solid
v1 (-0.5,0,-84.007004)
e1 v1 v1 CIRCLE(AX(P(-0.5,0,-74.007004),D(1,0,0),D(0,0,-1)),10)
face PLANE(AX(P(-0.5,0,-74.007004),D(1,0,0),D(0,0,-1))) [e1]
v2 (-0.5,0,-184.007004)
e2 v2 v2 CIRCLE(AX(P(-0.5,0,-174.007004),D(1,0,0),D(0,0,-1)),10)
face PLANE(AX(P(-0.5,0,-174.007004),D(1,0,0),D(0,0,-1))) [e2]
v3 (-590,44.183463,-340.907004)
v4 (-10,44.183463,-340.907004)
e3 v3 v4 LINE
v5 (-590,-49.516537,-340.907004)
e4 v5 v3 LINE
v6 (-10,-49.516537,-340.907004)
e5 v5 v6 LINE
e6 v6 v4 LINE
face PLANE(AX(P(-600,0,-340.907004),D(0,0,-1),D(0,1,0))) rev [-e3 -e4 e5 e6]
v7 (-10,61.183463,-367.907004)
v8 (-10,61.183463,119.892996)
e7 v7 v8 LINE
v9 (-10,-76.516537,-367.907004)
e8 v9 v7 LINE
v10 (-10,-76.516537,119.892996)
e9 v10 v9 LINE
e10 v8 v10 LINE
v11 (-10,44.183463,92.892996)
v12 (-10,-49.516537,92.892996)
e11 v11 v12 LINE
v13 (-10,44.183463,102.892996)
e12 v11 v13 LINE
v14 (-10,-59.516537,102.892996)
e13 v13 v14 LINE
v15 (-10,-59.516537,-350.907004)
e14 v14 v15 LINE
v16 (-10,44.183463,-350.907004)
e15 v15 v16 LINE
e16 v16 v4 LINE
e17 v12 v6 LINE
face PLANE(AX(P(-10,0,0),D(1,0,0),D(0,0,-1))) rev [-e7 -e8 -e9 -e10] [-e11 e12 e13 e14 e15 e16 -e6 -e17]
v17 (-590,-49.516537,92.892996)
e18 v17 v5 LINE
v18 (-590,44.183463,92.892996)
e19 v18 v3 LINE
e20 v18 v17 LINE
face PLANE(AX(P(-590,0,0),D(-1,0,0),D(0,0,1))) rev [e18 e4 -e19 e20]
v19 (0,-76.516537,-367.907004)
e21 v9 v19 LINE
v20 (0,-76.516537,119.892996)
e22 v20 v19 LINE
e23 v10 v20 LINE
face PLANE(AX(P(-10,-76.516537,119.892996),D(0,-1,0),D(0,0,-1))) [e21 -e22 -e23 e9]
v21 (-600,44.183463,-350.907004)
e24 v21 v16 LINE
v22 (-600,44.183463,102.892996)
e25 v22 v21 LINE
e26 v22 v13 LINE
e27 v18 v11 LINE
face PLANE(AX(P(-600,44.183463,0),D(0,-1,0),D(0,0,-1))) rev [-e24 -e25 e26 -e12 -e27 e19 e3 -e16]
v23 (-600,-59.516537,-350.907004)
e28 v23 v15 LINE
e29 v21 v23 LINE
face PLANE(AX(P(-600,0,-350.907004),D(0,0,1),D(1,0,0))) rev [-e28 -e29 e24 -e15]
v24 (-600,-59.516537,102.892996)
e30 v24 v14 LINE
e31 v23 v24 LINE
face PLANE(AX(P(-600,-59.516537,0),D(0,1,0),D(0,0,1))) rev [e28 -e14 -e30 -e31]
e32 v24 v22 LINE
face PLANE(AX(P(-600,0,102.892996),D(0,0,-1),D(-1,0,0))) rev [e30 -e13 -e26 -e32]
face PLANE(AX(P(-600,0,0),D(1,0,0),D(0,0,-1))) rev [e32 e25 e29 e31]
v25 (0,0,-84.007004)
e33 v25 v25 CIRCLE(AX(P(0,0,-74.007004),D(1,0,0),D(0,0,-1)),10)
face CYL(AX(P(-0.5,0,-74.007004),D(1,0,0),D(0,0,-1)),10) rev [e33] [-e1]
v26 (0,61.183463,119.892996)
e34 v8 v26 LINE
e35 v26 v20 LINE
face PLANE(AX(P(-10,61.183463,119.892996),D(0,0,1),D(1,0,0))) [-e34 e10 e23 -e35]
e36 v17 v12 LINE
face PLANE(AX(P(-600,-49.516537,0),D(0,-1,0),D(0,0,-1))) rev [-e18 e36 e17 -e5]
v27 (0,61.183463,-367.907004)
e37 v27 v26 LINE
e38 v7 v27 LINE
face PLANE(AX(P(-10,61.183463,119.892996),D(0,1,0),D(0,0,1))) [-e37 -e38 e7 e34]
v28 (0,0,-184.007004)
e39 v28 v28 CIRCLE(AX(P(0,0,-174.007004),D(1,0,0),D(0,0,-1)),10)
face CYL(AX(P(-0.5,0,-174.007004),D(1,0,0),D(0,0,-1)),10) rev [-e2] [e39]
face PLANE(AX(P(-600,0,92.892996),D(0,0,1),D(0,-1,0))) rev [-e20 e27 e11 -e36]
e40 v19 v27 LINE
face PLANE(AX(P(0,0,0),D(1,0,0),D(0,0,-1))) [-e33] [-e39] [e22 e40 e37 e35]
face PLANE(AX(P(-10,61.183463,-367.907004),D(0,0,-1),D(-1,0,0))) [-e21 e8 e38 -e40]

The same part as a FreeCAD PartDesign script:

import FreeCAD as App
import Part
import Sketcher
from FreeCAD import Vector
Q = App.Units.Quantity

doc = App.newDocument("Part")
body = doc.addObject("PartDesign::Body", "Body")

# Sketch on YZ plane
sketch1 = body.newObject("Sketcher::SketchObject", "Sketch")
sketch1.AttachmentSupport = (doc.getObject("YZ_Plane"), [""])
sketch1.MapMode = "FlatFace"
sketch1.addGeometry([
    Part.LineSegment(Vector(61.183463, 119.892996, 0), Vector(-76.516537, 119.892996, 0)),  # 0
    Part.LineSegment(Vector(-76.516537, 119.892996, 0), Vector(-76.516537, -367.907004, 0)),  # 1
    Part.LineSegment(Vector(-76.516537, -367.907004, 0), Vector(61.183463, -367.907004, 0)),  # 2
    Part.LineSegment(Vector(61.183463, -367.907004, 0), Vector(61.183463, 119.892996, 0)),  # 3
    Part.LineSegment(Vector(-59.516537, -350.907004, 0), Vector(-59.516537, 102.892996, 0)),  # 4
    Part.LineSegment(Vector(-59.516537, 102.892996, 0), Vector(44.183463, 102.892996, 0)),  # 5
    Part.LineSegment(Vector(44.183463, 102.892996, 0), Vector(44.183463, -350.907004, 0)),  # 6
    Part.LineSegment(Vector(44.183463, -350.907004, 0), Vector(-59.516537, -350.907004, 0)),  # 7
], False)
sketch1.addConstraint([
    Sketcher.Constraint("Coincident", 0, 2, 1, 1),
    Sketcher.Constraint("Coincident", 1, 2, 2, 1),
    Sketcher.Constraint("Coincident", 2, 2, 3, 1),
    Sketcher.Constraint("Coincident", 3, 2, 0, 1),
    Sketcher.Constraint("Coincident", 4, 2, 5, 1),
    Sketcher.Constraint("Coincident", 5, 2, 6, 1),
    Sketcher.Constraint("Coincident", 6, 2, 7, 1),
    Sketcher.Constraint("Coincident", 7, 2, 4, 1),
    Sketcher.Constraint("Horizontal", 0),
    Sketcher.Constraint("Vertical", 1),
    Sketcher.Constraint("Horizontal", 2),
    Sketcher.Constraint("Vertical", 3),
    Sketcher.Constraint("Vertical", 4),
    Sketcher.Constraint("Horizontal", 5),
    Sketcher.Constraint("Vertical", 6),
    Sketcher.Constraint("Horizontal", 7),
    Sketcher.Constraint("DistanceX", 0, 2, 0, 1, Q("137.7 mm")),
    Sketcher.Constraint("DistanceX", 5, 1, 5, 2, Q("103.7 mm")),
    Sketcher.Constraint("DistanceY", 1, 2, 1, 1, Q("487.8 mm")),
    Sketcher.Constraint("DistanceY", 4, 1, 4, 2, Q("453.8 mm")),
    Sketcher.Constraint("DistanceX", 0, 2, 4, 2, Q("17 mm")),
    Sketcher.Constraint("DistanceY", 4, 2, 0, 2, Q("17 mm")),
    Sketcher.Constraint("DistanceX", 0, 2, -1, 1, Q("76.516537 mm")),
    Sketcher.Constraint("DistanceY", -1, 1, 0, 2, Q("119.892996 mm")),
])
pad1 = body.newObject("PartDesign::Pad", "Pad")
pad1.Profile = sketch1
pad1.Length = 10
pad1.Reversed = True

# Sketch on YZ plane
sketch2 = body.newObject("Sketcher::SketchObject", "Sketch001")
sketch2.AttachmentSupport = (doc.getObject("YZ_Plane"), [""])
sketch2.MapMode = "FlatFace"
sketch2.addGeometry([
    Part.LineSegment(Vector(-49.516537, 92.892996, 0), Vector(44.183463, 92.892996, 0)),  # 0
    Part.LineSegment(Vector(44.183463, 92.892996, 0), Vector(44.183463, 102.892996, 0)),  # 1
    Part.LineSegment(Vector(44.183463, 102.892996, 0), Vector(-59.516537, 102.892996, 0)),  # 2
    Part.LineSegment(Vector(-59.516537, 102.892996, 0), Vector(-59.516537, -350.907004, 0)),  # 3
    Part.LineSegment(Vector(-59.516537, -350.907004, 0), Vector(44.183463, -350.907004, 0)),  # 4
    Part.LineSegment(Vector(44.183463, -350.907004, 0), Vector(44.183463, -340.907004, 0)),  # 5
    Part.LineSegment(Vector(44.183463, -340.907004, 0), Vector(-49.516537, -340.907004, 0)),  # 6
    Part.LineSegment(Vector(-49.516537, -340.907004, 0), Vector(-49.516537, 92.892996, 0)),  # 7
], False)
sketch2.addConstraint([
    Sketcher.Constraint("Coincident", 0, 2, 1, 1),
    Sketcher.Constraint("Coincident", 1, 2, 2, 1),
    Sketcher.Constraint("Coincident", 2, 2, 3, 1),
    Sketcher.Constraint("Coincident", 3, 2, 4, 1),
    Sketcher.Constraint("Coincident", 4, 2, 5, 1),
    Sketcher.Constraint("Coincident", 5, 2, 6, 1),
    Sketcher.Constraint("Coincident", 6, 2, 7, 1),
    Sketcher.Constraint("Coincident", 7, 2, 0, 1),
    Sketcher.Constraint("Horizontal", 0),
    Sketcher.Constraint("Vertical", 1),
    Sketcher.Constraint("Horizontal", 2),
    Sketcher.Constraint("Vertical", 3),
    Sketcher.Constraint("Horizontal", 4),
    Sketcher.Constraint("Vertical", 5),
    Sketcher.Constraint("Horizontal", 6),
    Sketcher.Constraint("Vertical", 7),
    Sketcher.Constraint("Vertical", 1, 2, 4, 2),
    Sketcher.Constraint("Equal", 1, 5),
    Sketcher.Constraint("DistanceY", 1, 1, 1, 2, Q("10 mm")),
    Sketcher.Constraint("DistanceX", 0, 1, 0, 2, Q("93.7 mm")),
    Sketcher.Constraint("DistanceX", 2, 2, 2, 1, Q("103.7 mm")),
    Sketcher.Constraint("DistanceY", 3, 2, 3, 1, Q("453.8 mm")),
    Sketcher.Constraint("DistanceX", -1, 1, 0, 2, Q("44.183463 mm")),
    Sketcher.Constraint("DistanceY", -1, 1, 0, 2, Q("92.892996 mm")),
])
pad2 = body.newObject("PartDesign::Pad", "Pad001")
pad2.Profile = sketch2
pad2.Length = 600
pad2.Reversed = True

# Sketch on YZ plane
sketch3 = body.newObject("Sketcher::SketchObject", "Sketch002")
sketch3.AttachmentSupport = (doc.getObject("YZ_Plane"), [""])
sketch3.MapMode = "FlatFace"
sketch3.addGeometry([
    Part.LineSegment(Vector(44.183463, 92.892996, 0), Vector(-49.516537, 92.892996, 0)),
    Part.LineSegment(Vector(-49.516537, 92.892996, 0), Vector(-49.516537, -340.907004, 0)),
    Part.LineSegment(Vector(-49.516537, -340.907004, 0), Vector(44.183463, -340.907004, 0)),
    Part.LineSegment(Vector(44.183463, -340.907004, 0), Vector(44.183463, 92.892996, 0)),
], False)
sketch3.addConstraint([
    Sketcher.Constraint("Coincident", 0, 2, 1, 1),
    Sketcher.Constraint("Coincident", 1, 2, 2, 1),
    Sketcher.Constraint("Coincident", 2, 2, 3, 1),
    Sketcher.Constraint("Coincident", 3, 2, 0, 1),
    Sketcher.Constraint("Horizontal", 0),
    Sketcher.Constraint("Vertical", 1),
    Sketcher.Constraint("Horizontal", 2),
    Sketcher.Constraint("Vertical", 3),
    Sketcher.Constraint("DistanceX", 0, 2, 0, 1, Q("93.7 mm")),
    Sketcher.Constraint("DistanceY", 1, 2, 1, 1, Q("433.8 mm")),
    Sketcher.Constraint("DistanceX", 0, 2, -1, 1, Q("49.516537 mm")),
    Sketcher.Constraint("DistanceY", -1, 1, 0, 2, Q("92.892996 mm")),
])
pad3 = body.newObject("PartDesign::Pad", "Pad002")
pad3.Profile = sketch3
pad3.Length = 10
pad3.Reversed = True

# Sketch on YZ plane
sketch4 = body.newObject("Sketcher::SketchObject", "Sketch003")
sketch4.AttachmentSupport = (doc.getObject("YZ_Plane"), [""])
sketch4.MapMode = "FlatFace"
sketch4.AttachmentOffset = App.Placement(Vector(0, 0, -600), App.Rotation())
sketch4.addGeometry([
    Part.LineSegment(Vector(44.183463, -350.907004, 0), Vector(-59.516537, -350.907004, 0)),
    Part.LineSegment(Vector(-59.516537, -350.907004, 0), Vector(-59.516537, 102.892996, 0)),
    Part.LineSegment(Vector(-59.516537, 102.892996, 0), Vector(44.183463, 102.892996, 0)),
    Part.LineSegment(Vector(44.183463, 102.892996, 0), Vector(44.183463, -350.907004, 0)),
], False)
sketch4.addConstraint([
    Sketcher.Constraint("Coincident", 0, 2, 1, 1),
    Sketcher.Constraint("Coincident", 1, 2, 2, 1),
    Sketcher.Constraint("Coincident", 2, 2, 3, 1),
    Sketcher.Constraint("Coincident", 3, 2, 0, 1),
    Sketcher.Constraint("Horizontal", 0),
    Sketcher.Constraint("Vertical", 1),
    Sketcher.Constraint("Horizontal", 2),
    Sketcher.Constraint("Vertical", 3),
    Sketcher.Constraint("DistanceX", 0, 2, 0, 1, Q("103.7 mm")),
    Sketcher.Constraint("DistanceY", 1, 1, 1, 2, Q("453.8 mm")),
    Sketcher.Constraint("DistanceX", 0, 2, -1, 1, Q("59.516537 mm")),
    Sketcher.Constraint("DistanceY", 0, 2, -1, 1, Q("350.907004 mm")),
])
pad4 = body.newObject("PartDesign::Pad", "Pad003")
pad4.Profile = sketch4
pad4.Length = 10

# Sketch on YZ plane
sketch5 = body.newObject("Sketcher::SketchObject", "Sketch004")
sketch5.AttachmentSupport = (doc.getObject("YZ_Plane"), [""])
sketch5.MapMode = "FlatFace"
sketch5.addGeometry(Part.Circle(Vector(-11.609012, -124.007004, 0), Vector(0, 0, 1), 25), False)
sketch5.addConstraint([
    Sketcher.Constraint("Diameter", 0, Q("50 mm")),
    Sketcher.Constraint("DistanceX", 0, 3, -1, 1, Q("11.609012 mm")),
    Sketcher.Constraint("DistanceY", 0, 3, -1, 1, Q("124.007004 mm")),
])
pocket1 = body.newObject("PartDesign::Pocket", "Pocket")
pocket1.Profile = sketch5
pocket1.Length = 5

# Sketch on YZ plane
sketch6 = body.newObject("Sketcher::SketchObject", "Sketch005")
sketch6.AttachmentSupport = (doc.getObject("YZ_Plane"), [""])
sketch6.MapMode = "FlatFace"
sketch6.addGeometry([
    Part.LineSegment(Vector(25.755175, -77.266865, 0), Vector(-49.632145, -77.266865, 0)),
    Part.LineSegment(Vector(-49.632145, -77.266865, 0), Vector(-49.632145, -193.865921, 0)),
    Part.LineSegment(Vector(-49.632145, -193.865921, 0), Vector(25.755175, -193.865921, 0)),
    Part.LineSegment(Vector(25.755175, -193.865921, 0), Vector(25.755175, -77.266865, 0)),
], False)
sketch6.addConstraint([
    Sketcher.Constraint("Coincident", 0, 2, 1, 1),
    Sketcher.Constraint("Coincident", 1, 2, 2, 1),
    Sketcher.Constraint("Coincident", 2, 2, 3, 1),
    Sketcher.Constraint("Coincident", 3, 2, 0, 1),
    Sketcher.Constraint("Horizontal", 0),
    Sketcher.Constraint("Vertical", 1),
    Sketcher.Constraint("Horizontal", 2),
    Sketcher.Constraint("Vertical", 3),
    Sketcher.Constraint("DistanceX", 0, 2, 0, 1, Q("75.38732 mm")),
    Sketcher.Constraint("DistanceY", 1, 2, 1, 1, Q("116.599055 mm")),
    Sketcher.Constraint("DistanceY", 1, 2, -1, 1, Q("193.865921 mm")),
    Sketcher.Constraint("DistanceX", 0, 2, -1, 1, Q("49.632145 mm")),
])
pad5 = body.newObject("PartDesign::Pad", "Pad004")
pad5.Profile = sketch6
pad5.Length = 9
pad5.Reversed = True

# Sketch on YZ plane
sketch7 = body.newObject("Sketcher::SketchObject", "Sketch006")
sketch7.AttachmentSupport = (doc.getObject("YZ_Plane"), [""])
sketch7.MapMode = "FlatFace"
sketch7.addGeometry([
    Part.Circle(Vector(0, -74.007004, 0), Vector(0, 0, 1), 10),
    Part.Circle(Vector(0, -174.007004, 0), Vector(0, 0, 1), 10),
], False)
sketch7.addConstraint([
    Sketcher.Constraint("Equal", 0, 1),
    Sketcher.Constraint("PointOnObject", 0, 3, -2),
    Sketcher.Constraint("PointOnObject", 1, 3, -2),
    Sketcher.Constraint("Diameter", 0, Q("20 mm")),
    Sketcher.Constraint("DistanceY", 1, 3, 0, 3, Q("100 mm")),
    Sketcher.Constraint("DistanceY", 0, 3, -1, 1, Q("74.007004 mm")),
])
pocket2 = body.newObject("PartDesign::Pocket", "Pocket001")
pocket2.Profile = sketch7
pocket2.Length = 0.5

doc.recompute()
